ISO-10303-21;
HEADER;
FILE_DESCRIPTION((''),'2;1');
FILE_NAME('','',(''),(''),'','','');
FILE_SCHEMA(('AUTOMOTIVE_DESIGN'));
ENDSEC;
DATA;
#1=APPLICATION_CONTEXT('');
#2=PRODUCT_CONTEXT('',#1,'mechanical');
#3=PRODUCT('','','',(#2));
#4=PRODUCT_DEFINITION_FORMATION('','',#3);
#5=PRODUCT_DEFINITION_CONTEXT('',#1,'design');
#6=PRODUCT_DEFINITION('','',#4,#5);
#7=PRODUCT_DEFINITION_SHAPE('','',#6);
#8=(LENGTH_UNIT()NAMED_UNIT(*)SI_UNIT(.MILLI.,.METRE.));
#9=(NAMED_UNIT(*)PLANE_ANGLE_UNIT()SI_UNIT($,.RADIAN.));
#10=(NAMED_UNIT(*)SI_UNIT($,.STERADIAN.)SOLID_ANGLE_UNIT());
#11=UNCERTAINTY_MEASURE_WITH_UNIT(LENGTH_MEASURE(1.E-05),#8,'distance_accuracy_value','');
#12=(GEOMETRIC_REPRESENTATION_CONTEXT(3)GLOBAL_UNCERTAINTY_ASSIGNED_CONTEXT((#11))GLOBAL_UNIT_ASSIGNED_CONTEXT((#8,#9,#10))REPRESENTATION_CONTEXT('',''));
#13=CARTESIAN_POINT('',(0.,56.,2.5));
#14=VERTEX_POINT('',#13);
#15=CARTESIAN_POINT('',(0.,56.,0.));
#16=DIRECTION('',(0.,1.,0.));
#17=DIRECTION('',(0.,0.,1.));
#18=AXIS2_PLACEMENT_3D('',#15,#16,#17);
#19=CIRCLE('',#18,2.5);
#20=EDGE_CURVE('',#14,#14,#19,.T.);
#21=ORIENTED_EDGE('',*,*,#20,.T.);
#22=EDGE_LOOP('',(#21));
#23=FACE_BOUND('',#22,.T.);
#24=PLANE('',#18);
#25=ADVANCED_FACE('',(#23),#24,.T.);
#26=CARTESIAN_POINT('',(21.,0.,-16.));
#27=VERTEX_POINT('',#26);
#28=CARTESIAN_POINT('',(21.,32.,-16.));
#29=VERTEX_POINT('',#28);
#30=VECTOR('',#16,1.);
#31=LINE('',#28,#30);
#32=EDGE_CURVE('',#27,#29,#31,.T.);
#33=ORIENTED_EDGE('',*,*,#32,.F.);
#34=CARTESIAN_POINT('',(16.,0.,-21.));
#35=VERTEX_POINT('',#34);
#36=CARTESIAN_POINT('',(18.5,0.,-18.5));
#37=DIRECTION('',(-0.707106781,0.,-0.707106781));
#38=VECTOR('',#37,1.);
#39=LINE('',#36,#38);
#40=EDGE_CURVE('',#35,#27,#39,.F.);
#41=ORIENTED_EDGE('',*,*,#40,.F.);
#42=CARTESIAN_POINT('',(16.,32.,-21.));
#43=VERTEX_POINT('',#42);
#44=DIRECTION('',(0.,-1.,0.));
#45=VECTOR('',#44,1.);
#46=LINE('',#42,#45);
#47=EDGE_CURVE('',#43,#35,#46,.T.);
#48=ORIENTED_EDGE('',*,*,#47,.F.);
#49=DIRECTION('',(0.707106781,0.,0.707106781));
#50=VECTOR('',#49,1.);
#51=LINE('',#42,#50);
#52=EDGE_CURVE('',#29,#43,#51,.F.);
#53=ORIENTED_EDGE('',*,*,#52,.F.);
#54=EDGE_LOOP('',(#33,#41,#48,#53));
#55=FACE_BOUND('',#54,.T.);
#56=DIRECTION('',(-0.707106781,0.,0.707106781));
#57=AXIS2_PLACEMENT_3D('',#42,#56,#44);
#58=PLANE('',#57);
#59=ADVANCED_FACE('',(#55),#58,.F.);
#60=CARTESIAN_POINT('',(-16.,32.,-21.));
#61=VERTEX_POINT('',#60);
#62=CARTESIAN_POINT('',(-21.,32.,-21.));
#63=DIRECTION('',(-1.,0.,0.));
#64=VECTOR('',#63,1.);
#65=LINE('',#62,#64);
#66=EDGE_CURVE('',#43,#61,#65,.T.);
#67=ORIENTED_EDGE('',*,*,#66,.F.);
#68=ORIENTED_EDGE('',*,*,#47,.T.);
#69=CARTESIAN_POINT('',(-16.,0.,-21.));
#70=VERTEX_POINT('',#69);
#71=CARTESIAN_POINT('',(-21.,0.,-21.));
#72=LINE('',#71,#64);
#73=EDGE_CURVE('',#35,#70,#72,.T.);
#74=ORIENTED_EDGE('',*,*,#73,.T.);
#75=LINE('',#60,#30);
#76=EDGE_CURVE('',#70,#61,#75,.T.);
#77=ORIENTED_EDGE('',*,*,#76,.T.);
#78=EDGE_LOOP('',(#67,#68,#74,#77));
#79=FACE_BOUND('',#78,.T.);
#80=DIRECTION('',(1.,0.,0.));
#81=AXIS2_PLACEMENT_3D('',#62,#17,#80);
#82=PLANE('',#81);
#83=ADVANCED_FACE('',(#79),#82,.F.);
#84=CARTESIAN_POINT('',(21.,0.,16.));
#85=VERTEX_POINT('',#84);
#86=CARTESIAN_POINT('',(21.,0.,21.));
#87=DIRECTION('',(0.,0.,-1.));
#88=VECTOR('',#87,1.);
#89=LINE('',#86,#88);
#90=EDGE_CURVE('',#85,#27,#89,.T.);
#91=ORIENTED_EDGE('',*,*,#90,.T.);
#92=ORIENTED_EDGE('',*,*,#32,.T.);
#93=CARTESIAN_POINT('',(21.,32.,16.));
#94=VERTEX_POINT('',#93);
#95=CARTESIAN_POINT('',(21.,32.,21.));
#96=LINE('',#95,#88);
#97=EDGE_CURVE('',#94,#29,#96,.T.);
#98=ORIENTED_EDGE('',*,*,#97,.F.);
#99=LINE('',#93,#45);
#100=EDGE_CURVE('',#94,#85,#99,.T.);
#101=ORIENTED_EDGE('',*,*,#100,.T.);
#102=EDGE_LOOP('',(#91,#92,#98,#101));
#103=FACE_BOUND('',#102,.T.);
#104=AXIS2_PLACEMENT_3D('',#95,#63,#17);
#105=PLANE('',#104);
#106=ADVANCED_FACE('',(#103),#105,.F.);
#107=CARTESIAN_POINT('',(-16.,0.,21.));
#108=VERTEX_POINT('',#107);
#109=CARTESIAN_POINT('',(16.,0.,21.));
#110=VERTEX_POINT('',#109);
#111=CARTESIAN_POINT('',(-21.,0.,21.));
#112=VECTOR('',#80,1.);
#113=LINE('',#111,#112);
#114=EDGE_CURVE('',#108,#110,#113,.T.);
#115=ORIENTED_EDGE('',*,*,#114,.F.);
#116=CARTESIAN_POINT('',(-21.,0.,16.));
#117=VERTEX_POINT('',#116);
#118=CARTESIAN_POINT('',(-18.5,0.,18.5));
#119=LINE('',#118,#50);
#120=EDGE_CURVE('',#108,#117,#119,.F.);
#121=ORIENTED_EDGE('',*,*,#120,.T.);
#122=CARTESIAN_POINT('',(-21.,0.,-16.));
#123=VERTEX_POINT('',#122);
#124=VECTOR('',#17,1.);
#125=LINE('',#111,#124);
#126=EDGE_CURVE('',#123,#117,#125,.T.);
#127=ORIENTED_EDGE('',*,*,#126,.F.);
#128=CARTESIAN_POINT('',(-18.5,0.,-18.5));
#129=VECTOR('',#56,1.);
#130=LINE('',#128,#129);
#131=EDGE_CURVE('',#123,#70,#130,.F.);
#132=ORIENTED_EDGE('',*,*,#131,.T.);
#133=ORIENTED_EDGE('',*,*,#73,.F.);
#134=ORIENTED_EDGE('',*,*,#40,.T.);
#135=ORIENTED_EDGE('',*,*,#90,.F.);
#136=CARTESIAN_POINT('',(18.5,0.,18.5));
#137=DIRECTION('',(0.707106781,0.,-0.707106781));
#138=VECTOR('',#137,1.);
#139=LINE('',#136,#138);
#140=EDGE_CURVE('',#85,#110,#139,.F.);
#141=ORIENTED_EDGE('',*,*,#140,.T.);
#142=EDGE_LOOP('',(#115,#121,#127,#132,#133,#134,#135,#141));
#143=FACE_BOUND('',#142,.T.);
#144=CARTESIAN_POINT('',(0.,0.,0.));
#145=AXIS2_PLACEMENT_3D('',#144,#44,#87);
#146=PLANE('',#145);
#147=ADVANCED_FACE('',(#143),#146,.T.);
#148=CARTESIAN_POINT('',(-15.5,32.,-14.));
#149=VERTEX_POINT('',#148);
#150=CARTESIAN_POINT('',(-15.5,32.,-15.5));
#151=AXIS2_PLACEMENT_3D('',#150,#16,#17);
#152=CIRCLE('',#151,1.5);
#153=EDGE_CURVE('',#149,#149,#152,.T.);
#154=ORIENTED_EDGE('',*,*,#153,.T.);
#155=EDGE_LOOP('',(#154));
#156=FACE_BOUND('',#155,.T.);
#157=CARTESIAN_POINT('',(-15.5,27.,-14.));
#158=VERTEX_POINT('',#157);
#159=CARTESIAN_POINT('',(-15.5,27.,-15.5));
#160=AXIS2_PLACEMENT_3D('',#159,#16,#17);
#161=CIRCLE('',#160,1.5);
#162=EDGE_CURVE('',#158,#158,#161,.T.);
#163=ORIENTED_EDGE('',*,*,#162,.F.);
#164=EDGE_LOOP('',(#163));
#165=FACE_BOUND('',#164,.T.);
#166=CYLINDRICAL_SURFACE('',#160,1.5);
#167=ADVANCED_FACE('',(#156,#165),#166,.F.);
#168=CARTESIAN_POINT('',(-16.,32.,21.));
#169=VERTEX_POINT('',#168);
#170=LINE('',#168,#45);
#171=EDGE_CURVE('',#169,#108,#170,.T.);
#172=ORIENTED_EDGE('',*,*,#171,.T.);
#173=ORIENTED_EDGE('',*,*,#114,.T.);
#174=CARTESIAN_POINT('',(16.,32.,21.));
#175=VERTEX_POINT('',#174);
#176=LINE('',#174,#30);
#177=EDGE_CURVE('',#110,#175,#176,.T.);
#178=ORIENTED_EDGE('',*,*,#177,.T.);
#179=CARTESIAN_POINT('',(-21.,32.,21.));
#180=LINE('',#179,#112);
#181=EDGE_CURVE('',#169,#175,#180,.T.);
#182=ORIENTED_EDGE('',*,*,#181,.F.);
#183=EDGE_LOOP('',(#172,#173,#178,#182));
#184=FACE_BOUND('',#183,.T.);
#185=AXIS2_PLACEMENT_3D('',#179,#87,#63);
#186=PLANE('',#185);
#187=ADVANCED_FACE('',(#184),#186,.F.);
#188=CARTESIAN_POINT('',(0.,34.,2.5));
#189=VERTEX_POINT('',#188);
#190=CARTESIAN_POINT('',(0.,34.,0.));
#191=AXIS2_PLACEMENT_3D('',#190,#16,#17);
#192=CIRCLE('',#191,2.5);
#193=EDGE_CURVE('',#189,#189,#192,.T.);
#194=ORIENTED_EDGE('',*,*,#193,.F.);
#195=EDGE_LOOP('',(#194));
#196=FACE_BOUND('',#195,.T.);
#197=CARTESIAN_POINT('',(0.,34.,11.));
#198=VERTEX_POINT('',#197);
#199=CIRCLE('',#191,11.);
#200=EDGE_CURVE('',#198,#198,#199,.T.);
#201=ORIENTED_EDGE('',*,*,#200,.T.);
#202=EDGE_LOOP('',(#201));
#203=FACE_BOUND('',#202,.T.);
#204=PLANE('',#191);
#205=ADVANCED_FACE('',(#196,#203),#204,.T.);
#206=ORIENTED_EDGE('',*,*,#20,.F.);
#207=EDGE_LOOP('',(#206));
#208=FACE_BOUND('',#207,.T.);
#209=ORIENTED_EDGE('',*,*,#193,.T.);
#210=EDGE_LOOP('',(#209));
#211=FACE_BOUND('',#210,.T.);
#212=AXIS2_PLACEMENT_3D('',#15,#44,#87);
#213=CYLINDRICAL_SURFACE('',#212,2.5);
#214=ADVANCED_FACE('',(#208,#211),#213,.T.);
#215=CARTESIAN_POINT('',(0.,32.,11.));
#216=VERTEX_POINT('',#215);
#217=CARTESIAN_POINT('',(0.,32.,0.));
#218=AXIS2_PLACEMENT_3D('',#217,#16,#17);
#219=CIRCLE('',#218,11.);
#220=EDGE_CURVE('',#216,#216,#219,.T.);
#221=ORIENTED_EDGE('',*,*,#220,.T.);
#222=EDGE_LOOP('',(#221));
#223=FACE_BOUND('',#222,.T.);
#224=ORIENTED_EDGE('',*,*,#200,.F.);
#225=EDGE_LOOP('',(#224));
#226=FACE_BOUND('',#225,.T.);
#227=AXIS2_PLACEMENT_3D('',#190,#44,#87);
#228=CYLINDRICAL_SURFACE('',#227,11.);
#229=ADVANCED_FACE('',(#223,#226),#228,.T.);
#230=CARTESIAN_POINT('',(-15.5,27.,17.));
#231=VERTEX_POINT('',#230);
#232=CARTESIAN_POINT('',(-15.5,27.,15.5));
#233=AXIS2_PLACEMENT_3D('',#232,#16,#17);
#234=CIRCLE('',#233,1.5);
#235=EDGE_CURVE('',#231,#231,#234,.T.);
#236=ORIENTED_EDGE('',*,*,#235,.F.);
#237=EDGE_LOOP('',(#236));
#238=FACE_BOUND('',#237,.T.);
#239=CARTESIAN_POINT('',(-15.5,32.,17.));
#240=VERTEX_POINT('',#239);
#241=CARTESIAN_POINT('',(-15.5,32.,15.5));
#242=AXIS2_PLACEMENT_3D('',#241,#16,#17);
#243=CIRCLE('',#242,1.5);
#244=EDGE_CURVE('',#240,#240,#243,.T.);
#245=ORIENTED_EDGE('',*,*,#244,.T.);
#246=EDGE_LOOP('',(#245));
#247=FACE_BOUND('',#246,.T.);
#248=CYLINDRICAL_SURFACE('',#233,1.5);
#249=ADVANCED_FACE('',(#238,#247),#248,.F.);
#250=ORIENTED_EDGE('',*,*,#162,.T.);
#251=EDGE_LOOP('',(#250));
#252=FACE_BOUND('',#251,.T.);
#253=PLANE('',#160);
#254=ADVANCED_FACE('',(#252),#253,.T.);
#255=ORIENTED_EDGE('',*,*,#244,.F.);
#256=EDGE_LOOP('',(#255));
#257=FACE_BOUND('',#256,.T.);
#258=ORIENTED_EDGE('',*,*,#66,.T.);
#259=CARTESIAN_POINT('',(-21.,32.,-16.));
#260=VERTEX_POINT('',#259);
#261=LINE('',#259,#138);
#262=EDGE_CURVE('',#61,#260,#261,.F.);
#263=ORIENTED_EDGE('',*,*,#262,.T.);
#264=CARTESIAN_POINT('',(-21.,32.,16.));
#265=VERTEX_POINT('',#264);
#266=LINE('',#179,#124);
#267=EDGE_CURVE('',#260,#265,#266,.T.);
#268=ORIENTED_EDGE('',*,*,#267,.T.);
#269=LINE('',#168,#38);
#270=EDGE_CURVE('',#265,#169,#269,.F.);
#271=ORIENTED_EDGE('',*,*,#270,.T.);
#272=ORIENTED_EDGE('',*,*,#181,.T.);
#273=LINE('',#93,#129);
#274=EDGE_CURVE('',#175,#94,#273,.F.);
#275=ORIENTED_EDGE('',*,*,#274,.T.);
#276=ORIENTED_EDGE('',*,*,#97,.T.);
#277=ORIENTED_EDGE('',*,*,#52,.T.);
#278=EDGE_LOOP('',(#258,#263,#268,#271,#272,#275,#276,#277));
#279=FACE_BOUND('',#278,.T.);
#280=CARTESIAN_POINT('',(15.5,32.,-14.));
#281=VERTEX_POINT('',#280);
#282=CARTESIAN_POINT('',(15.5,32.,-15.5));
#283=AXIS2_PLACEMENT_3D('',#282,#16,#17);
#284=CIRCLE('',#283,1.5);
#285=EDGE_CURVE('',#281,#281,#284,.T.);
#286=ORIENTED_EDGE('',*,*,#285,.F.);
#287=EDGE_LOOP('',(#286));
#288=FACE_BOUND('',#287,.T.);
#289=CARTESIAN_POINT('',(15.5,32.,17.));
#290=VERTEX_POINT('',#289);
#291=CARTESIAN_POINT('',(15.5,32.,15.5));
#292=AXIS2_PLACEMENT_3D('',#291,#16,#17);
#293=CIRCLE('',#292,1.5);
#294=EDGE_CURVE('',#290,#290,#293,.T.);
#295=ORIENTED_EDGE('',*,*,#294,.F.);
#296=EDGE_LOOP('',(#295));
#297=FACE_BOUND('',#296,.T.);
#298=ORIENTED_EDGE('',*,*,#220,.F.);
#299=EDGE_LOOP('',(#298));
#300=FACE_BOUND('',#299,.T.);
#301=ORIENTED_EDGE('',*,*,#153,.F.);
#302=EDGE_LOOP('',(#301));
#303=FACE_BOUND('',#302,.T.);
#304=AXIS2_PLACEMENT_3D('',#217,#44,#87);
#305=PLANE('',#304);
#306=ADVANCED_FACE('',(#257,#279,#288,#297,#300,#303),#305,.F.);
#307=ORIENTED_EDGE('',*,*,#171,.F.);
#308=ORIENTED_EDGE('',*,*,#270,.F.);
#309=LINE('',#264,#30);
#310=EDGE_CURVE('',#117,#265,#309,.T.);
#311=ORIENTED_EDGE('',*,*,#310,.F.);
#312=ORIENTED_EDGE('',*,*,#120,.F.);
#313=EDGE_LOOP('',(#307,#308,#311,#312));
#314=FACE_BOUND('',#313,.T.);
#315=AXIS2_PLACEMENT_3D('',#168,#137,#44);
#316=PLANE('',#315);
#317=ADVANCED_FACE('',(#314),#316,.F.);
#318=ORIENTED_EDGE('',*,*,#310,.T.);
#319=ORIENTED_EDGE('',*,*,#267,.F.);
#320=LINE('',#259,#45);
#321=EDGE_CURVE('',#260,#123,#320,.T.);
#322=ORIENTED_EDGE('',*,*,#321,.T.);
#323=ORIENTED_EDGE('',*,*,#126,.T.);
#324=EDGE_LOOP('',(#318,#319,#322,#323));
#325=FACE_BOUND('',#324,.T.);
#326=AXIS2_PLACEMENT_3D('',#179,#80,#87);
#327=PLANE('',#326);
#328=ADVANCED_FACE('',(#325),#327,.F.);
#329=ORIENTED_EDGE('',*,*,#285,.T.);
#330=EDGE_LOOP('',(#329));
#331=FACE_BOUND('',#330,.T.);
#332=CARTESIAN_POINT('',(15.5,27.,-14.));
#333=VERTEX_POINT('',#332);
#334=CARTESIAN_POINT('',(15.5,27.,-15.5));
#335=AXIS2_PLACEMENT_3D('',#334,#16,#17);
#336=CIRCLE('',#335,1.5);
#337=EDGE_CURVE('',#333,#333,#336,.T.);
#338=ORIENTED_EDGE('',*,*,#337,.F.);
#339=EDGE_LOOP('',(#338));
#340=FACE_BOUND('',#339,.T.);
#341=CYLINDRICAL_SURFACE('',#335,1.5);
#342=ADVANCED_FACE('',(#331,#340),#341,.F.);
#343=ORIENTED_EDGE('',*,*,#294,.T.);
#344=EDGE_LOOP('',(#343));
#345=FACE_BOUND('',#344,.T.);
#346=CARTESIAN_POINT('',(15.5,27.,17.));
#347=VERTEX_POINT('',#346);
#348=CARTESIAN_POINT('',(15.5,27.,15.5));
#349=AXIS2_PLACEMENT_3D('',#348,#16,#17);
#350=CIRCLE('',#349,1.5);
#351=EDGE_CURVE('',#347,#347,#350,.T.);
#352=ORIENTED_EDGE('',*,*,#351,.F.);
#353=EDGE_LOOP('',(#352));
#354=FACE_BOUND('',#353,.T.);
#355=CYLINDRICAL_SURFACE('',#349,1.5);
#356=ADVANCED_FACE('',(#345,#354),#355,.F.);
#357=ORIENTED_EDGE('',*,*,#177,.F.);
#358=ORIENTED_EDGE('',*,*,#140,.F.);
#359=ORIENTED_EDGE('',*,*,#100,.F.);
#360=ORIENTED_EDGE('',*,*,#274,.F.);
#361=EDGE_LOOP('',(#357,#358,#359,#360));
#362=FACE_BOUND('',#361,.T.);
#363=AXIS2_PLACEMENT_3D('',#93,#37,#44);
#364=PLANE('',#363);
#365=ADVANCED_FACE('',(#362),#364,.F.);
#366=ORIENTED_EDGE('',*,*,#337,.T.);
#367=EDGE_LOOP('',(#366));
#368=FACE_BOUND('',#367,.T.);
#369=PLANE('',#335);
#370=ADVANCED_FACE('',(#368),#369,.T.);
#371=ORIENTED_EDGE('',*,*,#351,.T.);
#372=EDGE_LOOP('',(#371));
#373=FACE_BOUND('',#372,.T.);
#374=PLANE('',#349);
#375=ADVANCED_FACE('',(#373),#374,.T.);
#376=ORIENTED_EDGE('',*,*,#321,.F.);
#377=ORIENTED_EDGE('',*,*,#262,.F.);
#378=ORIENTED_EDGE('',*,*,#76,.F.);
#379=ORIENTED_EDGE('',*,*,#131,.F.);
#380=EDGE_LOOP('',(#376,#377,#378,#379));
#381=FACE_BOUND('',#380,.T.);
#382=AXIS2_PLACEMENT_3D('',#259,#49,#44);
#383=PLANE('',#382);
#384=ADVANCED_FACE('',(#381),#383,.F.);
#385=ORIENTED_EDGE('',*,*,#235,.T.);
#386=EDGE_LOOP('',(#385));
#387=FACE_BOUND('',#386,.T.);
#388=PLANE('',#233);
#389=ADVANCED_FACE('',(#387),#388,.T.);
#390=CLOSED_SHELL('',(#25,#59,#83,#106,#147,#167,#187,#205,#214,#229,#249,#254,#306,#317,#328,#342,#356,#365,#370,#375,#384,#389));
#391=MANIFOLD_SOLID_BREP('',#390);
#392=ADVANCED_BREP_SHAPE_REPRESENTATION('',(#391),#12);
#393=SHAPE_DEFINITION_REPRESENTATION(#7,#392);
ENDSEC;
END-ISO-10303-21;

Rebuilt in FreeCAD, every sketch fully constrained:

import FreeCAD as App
import Part
import Sketcher

V = App.Vector


def edges_at(feature, points):
    """Names of the edges that pass closest to the given points."""
    edges = feature.Shape.Edges
    near = lambda p: min(range(len(edges)), key=lambda i: edges[i].distToShape(Part.Vertex(*p))[0])
    return sorted({f"Edge{near(p) + 1}" for p in points})


def add_polygon(sketch, points):
    """Adds a closed chain of lines whose ends are joined by coincident constraints."""
    first, n = sketch.GeometryCount, len(points)
    for a, b in zip(points, points[1:] + points[:1]):
        sketch.addGeometry(Part.LineSegment(App.Vector(*a, 0), App.Vector(*b, 0)), False)
    for i in range(n):
        sketch.addConstraint(Sketcher.Constraint("Coincident", first + i, 2, first + (i + 1) % n, 1))

doc = App.newDocument("Part")
params = doc.addObject("Spreadsheet::Sheet", "Params")
for row, (alias, value) in enumerate([
    ("sketch1_width", "42 mm"),
    ("pad1_length", "32 mm"),
    ("sketch2_diameter", "22 mm"),
    ("pad2_length", "2 mm"),
    ("sketch3_diameter", "5 mm"),
    ("pad3_length", "22 mm"),
    ("sketch4_diameter", "3 mm"),
    ("pocket1_length", "5 mm"),
    ("chamfer_size", "5 mm"),
], start=1):
    params.set(f"A{row}", alias)
    params.set(f"B{row}", "=" + value)
    params.setAlias(f"B{row}", alias)

body = doc.addObject("PartDesign::Body", "Body")

# Sketch on XZ plane
sketch1 = body.newObject("Sketcher::SketchObject", "Sketch")
sketch1.AttachmentSupport = (doc.getObject("XZ_Plane"), [""])
sketch1.MapMode = "FlatFace"
add_polygon(sketch1, [(-21, -21), (-21, 21), (21, 21), (21, -21)])  # lines 0-3
sketch1.addConstraint([
    Sketcher.Constraint("Vertical", 0),
    Sketcher.Constraint("Horizontal", 1),
    Sketcher.Constraint("Vertical", 2),
    Sketcher.Constraint("Horizontal", 3),
    Sketcher.Constraint("Symmetric", 0, 2, 2, 2, -1, 1),
    Sketcher.Constraint("Equal", 3, 0),
    Sketcher.Constraint("DistanceX", 1, 1, 1, 2, 42.0),
])
sketch1.setExpression("Constraints[10]", "Params.sketch1_width")
pad1 = body.newObject("PartDesign::Pad", "Pad")
pad1.Profile = sketch1
pad1.setExpression("Length", "Params.pad1_length")
pad1.Reversed = True

# Sketch on XZ plane
sketch2 = body.newObject("Sketcher::SketchObject", "Sketch001")
sketch2.AttachmentSupport = (doc.getObject("XZ_Plane"), [""])
sketch2.MapMode = "FlatFace"
sketch2.AttachmentOffset = App.Placement(V(0, 0, -32), App.Rotation())
sketch2.addGeometry(Part.Circle(V(0, 0, 0), V(0, 0, 1), 11), False)
sketch2.addConstraint([
    Sketcher.Constraint("Coincident", 0, 3, -1, 1),
    Sketcher.Constraint("Diameter", 0, 22.0),
])
sketch2.setExpression("Constraints[1]", "Params.sketch2_diameter")
pad2 = body.newObject("PartDesign::Pad", "Pad001")
pad2.Profile = sketch2
pad2.setExpression("Length", "Params.pad2_length")
pad2.Reversed = True

# Sketch on XZ plane
sketch3 = body.newObject("Sketcher::SketchObject", "Sketch002")
sketch3.AttachmentSupport = (doc.getObject("XZ_Plane"), [""])
sketch3.MapMode = "FlatFace"
sketch3.AttachmentOffset = App.Placement(V(0, 0, -34), App.Rotation())
sketch3.addGeometry(Part.Circle(V(0, 0, 0), V(0, 0, 1), 2.5), False)
sketch3.addConstraint([
    Sketcher.Constraint("Coincident", 0, 3, -1, 1),
    Sketcher.Constraint("Diameter", 0, 5.0),
])
sketch3.setExpression("Constraints[1]", "Params.sketch3_diameter")
pad3 = body.newObject("PartDesign::Pad", "Pad002")
pad3.Profile = sketch3
pad3.setExpression("Length", "Params.pad3_length")
pad3.Reversed = True

# Sketch on XZ plane
sketch4 = body.newObject("Sketcher::SketchObject", "Sketch003")
sketch4.AttachmentSupport = (doc.getObject("XZ_Plane"), [""])
sketch4.MapMode = "FlatFace"
sketch4.AttachmentOffset = App.Placement(V(0, 0, -32), App.Rotation())
sketch4.addGeometry([
    Part.Circle(V(15.5, -15.5, 0), V(0, 0, 1), 1.5),
    Part.Circle(V(15.5, 15.5, 0), V(0, 0, 1), 1.5),
    Part.Circle(V(-15.5, 15.5, 0), V(0, 0, 1), 1.5),
    Part.Circle(V(-15.5, -15.5, 0), V(0, 0, 1), 1.5),
], False)
sketch4.addConstraint([
    Sketcher.Constraint("Equal", 0, 1),
    Sketcher.Constraint("Equal", 1, 2),
    Sketcher.Constraint("Equal", 2, 3),
    Sketcher.Constraint("Symmetric", 0, 3, 2, 3, -1, 1),
    Sketcher.Constraint("Symmetric", 1, 3, 3, 3, -1, 1),
    Sketcher.Constraint("Symmetric", 1, 3, 2, 3, -2),
    Sketcher.Constraint("Diameter", 0, 3.0),
    Sketcher.Constraint("DistanceY", 0, 3, 1, 3, 31.0),
    Sketcher.Constraint("DistanceX", 2, 3, 1, 3, 31.0),
])
sketch4.setExpression("Constraints[6]", "Params.sketch4_diameter")
pocket1 = body.newObject("PartDesign::Pocket", "Pocket")
pocket1.Profile = sketch4
pocket1.setExpression("Length", "Params.pocket1_length")
pocket1.Reversed = True
doc.recompute()

chamfer = body.newObject("PartDesign::Chamfer", "Chamfer")
chamfer.Base = (pocket1, edges_at(pocket1, [
    (21, 16, 21),
    (-21, 16, 21),
    (-21, 16, -21),
    (21, 16, -21),
]))
chamfer.setExpression("Size", "Params.chamfer_size")

doc.recompute()
